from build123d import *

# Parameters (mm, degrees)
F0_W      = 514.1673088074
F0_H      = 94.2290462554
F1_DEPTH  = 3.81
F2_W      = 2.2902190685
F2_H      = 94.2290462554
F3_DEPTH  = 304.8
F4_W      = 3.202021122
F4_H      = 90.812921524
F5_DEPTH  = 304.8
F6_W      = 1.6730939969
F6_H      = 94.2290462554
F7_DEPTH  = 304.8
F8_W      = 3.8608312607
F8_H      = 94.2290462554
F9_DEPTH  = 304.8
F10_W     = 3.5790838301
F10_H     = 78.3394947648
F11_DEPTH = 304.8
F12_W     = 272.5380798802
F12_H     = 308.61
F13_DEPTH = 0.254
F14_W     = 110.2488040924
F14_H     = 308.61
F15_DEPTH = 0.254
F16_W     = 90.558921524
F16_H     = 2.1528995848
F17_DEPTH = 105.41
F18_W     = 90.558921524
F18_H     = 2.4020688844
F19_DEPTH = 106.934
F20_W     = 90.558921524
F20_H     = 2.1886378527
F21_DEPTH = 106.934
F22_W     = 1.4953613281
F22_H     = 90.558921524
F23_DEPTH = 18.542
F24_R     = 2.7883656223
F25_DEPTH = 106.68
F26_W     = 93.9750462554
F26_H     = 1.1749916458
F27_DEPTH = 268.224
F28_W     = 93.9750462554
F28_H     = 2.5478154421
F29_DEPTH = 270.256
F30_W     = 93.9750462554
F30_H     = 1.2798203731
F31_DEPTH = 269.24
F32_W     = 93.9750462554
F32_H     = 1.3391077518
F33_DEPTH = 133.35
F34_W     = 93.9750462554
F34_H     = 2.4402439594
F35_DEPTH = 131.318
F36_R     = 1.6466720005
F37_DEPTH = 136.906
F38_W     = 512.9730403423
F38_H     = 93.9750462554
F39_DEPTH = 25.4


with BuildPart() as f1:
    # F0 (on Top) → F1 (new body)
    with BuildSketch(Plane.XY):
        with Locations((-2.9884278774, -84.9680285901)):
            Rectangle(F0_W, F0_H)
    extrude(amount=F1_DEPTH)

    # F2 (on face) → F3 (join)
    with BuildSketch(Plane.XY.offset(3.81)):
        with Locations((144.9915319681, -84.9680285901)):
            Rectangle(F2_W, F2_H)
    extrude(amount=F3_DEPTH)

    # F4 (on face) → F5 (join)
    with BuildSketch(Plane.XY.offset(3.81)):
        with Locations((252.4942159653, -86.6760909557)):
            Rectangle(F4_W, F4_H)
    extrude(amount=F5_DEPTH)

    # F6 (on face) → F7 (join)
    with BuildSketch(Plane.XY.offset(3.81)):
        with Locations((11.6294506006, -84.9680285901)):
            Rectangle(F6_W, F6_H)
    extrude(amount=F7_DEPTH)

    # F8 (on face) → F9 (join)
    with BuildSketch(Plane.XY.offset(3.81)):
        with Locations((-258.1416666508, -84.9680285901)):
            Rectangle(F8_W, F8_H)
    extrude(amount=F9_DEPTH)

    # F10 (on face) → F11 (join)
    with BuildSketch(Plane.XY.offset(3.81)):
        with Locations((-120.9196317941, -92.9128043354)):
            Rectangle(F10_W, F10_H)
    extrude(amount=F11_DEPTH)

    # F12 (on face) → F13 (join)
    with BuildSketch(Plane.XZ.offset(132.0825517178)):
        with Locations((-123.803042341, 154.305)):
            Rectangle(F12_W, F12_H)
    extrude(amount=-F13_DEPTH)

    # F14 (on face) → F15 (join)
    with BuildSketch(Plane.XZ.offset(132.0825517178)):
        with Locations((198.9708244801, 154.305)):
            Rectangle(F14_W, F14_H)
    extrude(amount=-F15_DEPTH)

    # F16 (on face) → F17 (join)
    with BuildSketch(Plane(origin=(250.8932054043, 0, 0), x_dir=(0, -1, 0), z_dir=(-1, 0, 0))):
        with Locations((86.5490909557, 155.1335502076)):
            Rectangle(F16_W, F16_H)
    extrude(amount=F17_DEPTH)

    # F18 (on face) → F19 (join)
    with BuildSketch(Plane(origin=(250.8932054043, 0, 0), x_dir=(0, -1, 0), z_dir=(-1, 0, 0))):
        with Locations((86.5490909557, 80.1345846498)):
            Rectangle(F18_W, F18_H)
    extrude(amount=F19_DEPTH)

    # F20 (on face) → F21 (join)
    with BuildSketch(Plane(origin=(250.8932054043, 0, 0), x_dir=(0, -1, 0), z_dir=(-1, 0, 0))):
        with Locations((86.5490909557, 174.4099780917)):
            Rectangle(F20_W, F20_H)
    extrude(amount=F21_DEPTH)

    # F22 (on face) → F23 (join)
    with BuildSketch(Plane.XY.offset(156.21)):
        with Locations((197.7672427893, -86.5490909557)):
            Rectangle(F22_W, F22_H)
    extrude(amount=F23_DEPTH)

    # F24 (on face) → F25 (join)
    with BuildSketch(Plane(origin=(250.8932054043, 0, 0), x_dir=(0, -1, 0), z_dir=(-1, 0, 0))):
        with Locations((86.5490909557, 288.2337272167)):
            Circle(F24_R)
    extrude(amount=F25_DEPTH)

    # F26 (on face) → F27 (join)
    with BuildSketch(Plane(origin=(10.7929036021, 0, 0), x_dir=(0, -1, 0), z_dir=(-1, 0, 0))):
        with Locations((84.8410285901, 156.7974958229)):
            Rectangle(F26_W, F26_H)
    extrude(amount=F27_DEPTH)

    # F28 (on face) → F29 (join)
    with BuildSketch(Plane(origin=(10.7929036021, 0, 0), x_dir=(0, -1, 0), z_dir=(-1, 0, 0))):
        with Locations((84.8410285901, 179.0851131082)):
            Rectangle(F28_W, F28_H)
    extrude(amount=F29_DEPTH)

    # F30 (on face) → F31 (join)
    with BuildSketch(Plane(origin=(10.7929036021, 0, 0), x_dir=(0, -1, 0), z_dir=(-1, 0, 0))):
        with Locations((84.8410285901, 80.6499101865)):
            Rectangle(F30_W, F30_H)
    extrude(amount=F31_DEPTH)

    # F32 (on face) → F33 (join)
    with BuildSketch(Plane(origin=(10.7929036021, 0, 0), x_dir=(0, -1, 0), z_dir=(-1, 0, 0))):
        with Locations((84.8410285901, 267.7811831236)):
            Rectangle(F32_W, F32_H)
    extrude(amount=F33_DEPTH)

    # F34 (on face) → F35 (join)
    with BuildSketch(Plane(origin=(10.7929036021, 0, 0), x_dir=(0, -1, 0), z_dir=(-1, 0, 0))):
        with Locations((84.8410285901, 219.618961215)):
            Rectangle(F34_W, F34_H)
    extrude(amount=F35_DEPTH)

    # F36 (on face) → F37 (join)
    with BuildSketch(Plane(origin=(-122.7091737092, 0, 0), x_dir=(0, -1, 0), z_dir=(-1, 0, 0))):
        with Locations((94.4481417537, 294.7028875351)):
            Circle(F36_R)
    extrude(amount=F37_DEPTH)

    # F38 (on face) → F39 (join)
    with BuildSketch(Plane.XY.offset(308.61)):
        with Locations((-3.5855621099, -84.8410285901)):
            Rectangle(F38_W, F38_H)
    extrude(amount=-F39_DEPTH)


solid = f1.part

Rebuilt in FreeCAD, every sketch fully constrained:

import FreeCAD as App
import Part
import Sketcher
from FreeCAD import Vector
Q = App.Units.Quantity


def add_polygon(sketch, points):
    """Adds a closed chain of lines whose ends are joined by coincident constraints."""
    first, n = sketch.GeometryCount, len(points)
    for a, b in zip(points, points[1:] + points[:1]):
        sketch.addGeometry(Part.LineSegment(App.Vector(*a, 0), App.Vector(*b, 0)), False)
    for i in range(n):
        sketch.addConstraint(Sketcher.Constraint("Coincident", first + i, 2, first + (i + 1) % n, 1))

doc = App.newDocument("Part")
body = doc.addObject("PartDesign::Body", "Body")

# Sketch on XY plane
sketch1 = body.newObject("Sketcher::SketchObject", "Sketch")
sketch1.AttachmentSupport = (doc.getObject("XY_Plane"), [""])
sketch1.MapMode = "FlatFace"
add_polygon(sketch1, [(-260.072082, -37.853505), (-260.072082, -132.082552), (254.095227, -132.082552), (254.095227, -37.853505)])  # lines 0-3
sketch1.addConstraint(Sketcher.Constraint("Vertical", 0))
sketch1.addConstraint(Sketcher.Constraint("Horizontal", 1))
sketch1.addConstraint(Sketcher.Constraint("Vertical", 2))
sketch1.addConstraint(Sketcher.Constraint("Horizontal", 3))
sketch1.addConstraint(Sketcher.Constraint("DistanceX", 1, 1, 1, 2, Q("514.167309 mm")))
sketch1.addConstraint(Sketcher.Constraint("DistanceY", 0, 2, 0, 1, Q("94.229046 mm")))
sketch1.addConstraint(Sketcher.Constraint("DistanceY", 0, 2, -1, 1, Q("132.082552 mm")))
sketch1.addConstraint(Sketcher.Constraint("DistanceX", 0, 2, -1, 1, Q("260.072082 mm")))
pad1 = body.newObject("PartDesign::Pad", "Pad")
pad1.Profile = sketch1
pad1.Length = Q("0.15 in")

# Sketch on XY plane
sketch2 = body.newObject("Sketcher::SketchObject", "Sketch001")
sketch2.AttachmentSupport = (doc.getObject("XY_Plane"), [""])
sketch2.MapMode = "FlatFace"
sketch2.AttachmentOffset = App.Placement(Vector(0, 0, 0.15 * 25.4), App.Rotation())
add_polygon(sketch2, [(143.846422, -37.853505), (143.846422, -132.082552), (146.136642, -132.082552), (146.136642, -37.853505)])  # lines 0-3
sketch2.addConstraint(Sketcher.Constraint("Vertical", 0))
sketch2.addConstraint(Sketcher.Constraint("Horizontal", 1))
sketch2.addConstraint(Sketcher.Constraint("Vertical", 2))
sketch2.addConstraint(Sketcher.Constraint("Horizontal", 3))
sketch2.addConstraint(Sketcher.Constraint("DistanceX", 1, 1, 1, 2, Q("2.290219 mm")))
sketch2.addConstraint(Sketcher.Constraint("DistanceY", 0, 2, 0, 1, Q("94.229046 mm")))
sketch2.addConstraint(Sketcher.Constraint("DistanceY", 0, 2, -1, 1, Q("132.082552 mm")))
sketch2.addConstraint(Sketcher.Constraint("DistanceX", -1, 1, 1, 2, Q("146.136642 mm")))
pad2 = body.newObject("PartDesign::Pad", "Pad001")
pad2.Profile = sketch2
pad2.Length = Q("12 in")

# Sketch on XY plane
sketch3 = body.newObject("Sketcher::SketchObject", "Sketch002")
sketch3.AttachmentSupport = (doc.getObject("XY_Plane"), [""])
sketch3.MapMode = "FlatFace"
sketch3.AttachmentOffset = App.Placement(Vector(0, 0, 0.15 * 25.4), App.Rotation())
add_polygon(sketch3, [(250.893205, -41.26963), (250.893205, -132.082552), (254.095227, -132.082552), (254.095227, -41.26963)])  # lines 0-3
sketch3.addConstraint(Sketcher.Constraint("Vertical", 0))
sketch3.addConstraint(Sketcher.Constraint("Horizontal", 1))
sketch3.addConstraint(Sketcher.Constraint("Vertical", 2))
sketch3.addConstraint(Sketcher.Constraint("Horizontal", 3))
sketch3.addConstraint(Sketcher.Constraint("DistanceX", 1, 1, 1, 2, Q("3.202021 mm")))
sketch3.addConstraint(Sketcher.Constraint("DistanceY", 0, 2, 0, 1, Q("90.812922 mm")))
sketch3.addConstraint(Sketcher.Constraint("DistanceY", 0, 2, -1, 1, Q("132.082552 mm")))
sketch3.addConstraint(Sketcher.Constraint("DistanceX", -1, 1, 0, 2, Q("250.893205 mm")))
pad3 = body.newObject("PartDesign::Pad", "Pad002")
pad3.Profile = sketch3
pad3.Length = Q("12 in")

# Sketch on XY plane
sketch4 = body.newObject("Sketcher::SketchObject", "Sketch003")
sketch4.AttachmentSupport = (doc.getObject("XY_Plane"), [""])
sketch4.MapMode = "FlatFace"
sketch4.AttachmentOffset = App.Placement(Vector(0, 0, 0.15 * 25.4), App.Rotation())
add_polygon(sketch4, [(10.792904, -37.853505), (10.792904, -132.082552), (12.465998, -132.082552), (12.465998, -37.853505)])  # lines 0-3
sketch4.addConstraint(Sketcher.Constraint("Vertical", 0))
sketch4.addConstraint(Sketcher.Constraint("Horizontal", 1))
sketch4.addConstraint(Sketcher.Constraint("Vertical", 2))
sketch4.addConstraint(Sketcher.Constraint("Horizontal", 3))
sketch4.addConstraint(Sketcher.Constraint("DistanceX", 1, 1, 1, 2, Q("1.673094 mm")))
sketch4.addConstraint(Sketcher.Constraint("DistanceY", 0, 2, 0, 1, Q("94.229046 mm")))
sketch4.addConstraint(Sketcher.Constraint("DistanceY", 0, 2, -1, 1, Q("132.082552 mm")))
sketch4.addConstraint(Sketcher.Constraint("DistanceX", -1, 1, 0, 2, Q("10.792904 mm")))
pad4 = body.newObject("PartDesign::Pad", "Pad003")
pad4.Profile = sketch4
pad4.Length = Q("12 in")

# Sketch on XY plane
sketch5 = body.newObject("Sketcher::SketchObject", "Sketch004")
sketch5.AttachmentSupport = (doc.getObject("XY_Plane"), [""])
sketch5.MapMode = "FlatFace"
sketch5.AttachmentOffset = App.Placement(Vector(0, 0, 0.15 * 25.4), App.Rotation())
add_polygon(sketch5, [(-260.072082, -37.853505), (-260.072082, -132.082552), (-256.211251, -132.082552), (-256.211251, -37.853505)])  # lines 0-3
sketch5.addConstraint(Sketcher.Constraint("Vertical", 0))
sketch5.addConstraint(Sketcher.Constraint("Horizontal", 1))
sketch5.addConstraint(Sketcher.Constraint("Vertical", 2))
sketch5.addConstraint(Sketcher.Constraint("Horizontal", 3))
sketch5.addConstraint(Sketcher.Constraint("DistanceX", 1, 1, 1, 2, Q("3.860831 mm")))
sketch5.addConstraint(Sketcher.Constraint("DistanceY", 0, 2, 0, 1, Q("94.229046 mm")))
sketch5.addConstraint(Sketcher.Constraint("DistanceY", 0, 2, -1, 1, Q("132.082552 mm")))
sketch5.addConstraint(Sketcher.Constraint("DistanceX", 1, 2, -1, 1, Q("256.211251 mm")))
pad5 = body.newObject("PartDesign::Pad", "Pad004")
pad5.Profile = sketch5
pad5.Length = Q("12 in")

# Sketch on XY plane
sketch6 = body.newObject("Sketcher::SketchObject", "Sketch005")
sketch6.AttachmentSupport = (doc.getObject("XY_Plane"), [""])
sketch6.MapMode = "FlatFace"
sketch6.AttachmentOffset = App.Placement(Vector(0, 0, 0.15 * 25.4), App.Rotation())
add_polygon(sketch6, [(-122.709174, -53.743057), (-122.709174, -132.082552), (-119.13009, -132.082552), (-119.13009, -53.743057)])  # lines 0-3
sketch6.addConstraint(Sketcher.Constraint("Vertical", 0))
sketch6.addConstraint(Sketcher.Constraint("Horizontal", 1))
sketch6.addConstraint(Sketcher.Constraint("Vertical", 2))
sketch6.addConstraint(Sketcher.Constraint("Horizontal", 3))
sketch6.addConstraint(Sketcher.Constraint("DistanceX", 1, 1, 1, 2, Q("3.579084 mm")))
sketch6.addConstraint(Sketcher.Constraint("DistanceY", 0, 2, 0, 1, Q("78.339495 mm")))
sketch6.addConstraint(Sketcher.Constraint("DistanceY", 0, 2, -1, 1, Q("132.082552 mm")))
sketch6.addConstraint(Sketcher.Constraint("DistanceX", 1, 2, -1, 1, Q("119.13009 mm")))
pad6 = body.newObject("PartDesign::Pad", "Pad005")
pad6.Profile = sketch6
pad6.Length = Q("12 in")

# Sketch on XZ plane
sketch7 = body.newObject("Sketcher::SketchObject", "Sketch006")
sketch7.AttachmentSupport = (doc.getObject("XZ_Plane"), [""])
sketch7.MapMode = "FlatFace"
sketch7.AttachmentOffset = App.Placement(Vector(0, 0, 132.082552), App.Rotation())
add_polygon(sketch7, [(-260.072082, 308.61), (-260.072082, 0), (12.465998, 0), (12.465998, 308.61)])  # lines 0-3
sketch7.addConstraint(Sketcher.Constraint("Vertical", 0))
sketch7.addConstraint(Sketcher.Constraint("Horizontal", 1))
sketch7.addConstraint(Sketcher.Constraint("Vertical", 2))
sketch7.addConstraint(Sketcher.Constraint("Horizontal", 3))
sketch7.addConstraint(Sketcher.Constraint("PointOnObject", 0, 2, -1))
sketch7.addConstraint(Sketcher.Constraint("DistanceY", 0, 2, 0, 1, Q("12.15 in")))
sketch7.addConstraint(Sketcher.Constraint("DistanceX", 1, 1, 1, 2, Q("272.53808 mm")))
sketch7.addConstraint(Sketcher.Constraint("DistanceX", 0, 2, -1, 1, Q("260.072082 mm")))
pad7 = body.newObject("PartDesign::Pad", "Pad006")
pad7.Profile = sketch7
pad7.Length = Q("0.01 in")
pad7.Reversed = True

# Sketch on XZ plane
sketch8 = body.newObject("Sketcher::SketchObject", "Sketch007")
sketch8.AttachmentSupport = (doc.getObject("XZ_Plane"), [""])
sketch8.MapMode = "FlatFace"
sketch8.AttachmentOffset = App.Placement(Vector(0, 0, 132.082552), App.Rotation())
add_polygon(sketch8, [(143.846422, 308.61), (143.846422, 0), (254.095227, 0), (254.095227, 308.61)])  # lines 0-3
sketch8.addConstraint(Sketcher.Constraint("Vertical", 0))
sketch8.addConstraint(Sketcher.Constraint("Horizontal", 1))
sketch8.addConstraint(Sketcher.Constraint("Vertical", 2))
sketch8.addConstraint(Sketcher.Constraint("Horizontal", 3))
sketch8.addConstraint(Sketcher.Constraint("PointOnObject", 0, 2, -1))
sketch8.addConstraint(Sketcher.Constraint("DistanceY", 0, 2, 0, 1, Q("12.15 in")))
sketch8.addConstraint(Sketcher.Constraint("DistanceX", 1, 1, 1, 2, Q("110.248804 mm")))
sketch8.addConstraint(Sketcher.Constraint("DistanceX", -1, 1, 0, 2, Q("143.846422 mm")))
pad8 = body.newObject("PartDesign::Pad", "Pad007")
pad8.Profile = sketch8
pad8.Length = Q("0.01 in")
pad8.Reversed = True

# Sketch on YZ plane
sketch9 = body.newObject("Sketcher::SketchObject", "Sketch008")
sketch9.AttachmentSupport = (doc.getObject("YZ_Plane"), [""])
sketch9.MapMode = "FlatFace"
sketch9.AttachmentOffset = App.Placement(Vector(0, 0, 250.893205), App.Rotation())
add_polygon(sketch9, [(-41.26963, 156.21), (-41.26963, 154.0571), (-131.828552, 154.0571), (-131.828552, 156.21)])  # lines 0-3
sketch9.addConstraint(Sketcher.Constraint("Vertical", 0))
sketch9.addConstraint(Sketcher.Constraint("Horizontal", 1))
sketch9.addConstraint(Sketcher.Constraint("Vertical", 2))
sketch9.addConstraint(Sketcher.Constraint("Horizontal", 3))
sketch9.addConstraint(Sketcher.Constraint("DistanceY", -1, 1, 2, 2, Q("6.15 in")))
sketch9.addConstraint(Sketcher.Constraint("DistanceY", 0, 2, 0, 1, Q("2.1529 mm")))
sketch9.addConstraint(Sketcher.Constraint("DistanceX", 1, 2, 1, 1, Q("90.558922 mm")))
sketch9.addConstraint(Sketcher.Constraint("DistanceX", 0, 2, -1, 1, Q("41.26963 mm")))
pad9 = body.newObject("PartDesign::Pad", "Pad008")
pad9.Profile = sketch9
pad9.Length = Q("4.15 in")
pad9.Reversed = True

# Sketch on YZ plane
sketch10 = body.newObject("Sketcher::SketchObject", "Sketch009")
sketch10.AttachmentSupport = (doc.getObject("YZ_Plane"), [""])
sketch10.MapMode = "FlatFace"
sketch10.AttachmentOffset = App.Placement(Vector(0, 0, 250.893205), App.Rotation())
add_polygon(sketch10, [(-41.26963, 81.335619), (-41.26963, 78.93355), (-131.828552, 78.93355), (-131.828552, 81.335619)])  # lines 0-3
sketch10.addConstraint(Sketcher.Constraint("Vertical", 0))
sketch10.addConstraint(Sketcher.Constraint("Horizontal", 1))
sketch10.addConstraint(Sketcher.Constraint("Vertical", 2))
sketch10.addConstraint(Sketcher.Constraint("Horizontal", 3))
sketch10.addConstraint(Sketcher.Constraint("DistanceX", 1, 2, 1, 1, Q("90.558922 mm")))
sketch10.addConstraint(Sketcher.Constraint("DistanceY", 0, 2, 0, 1, Q("2.402069 mm")))
sketch10.addConstraint(Sketcher.Constraint("DistanceX", 0, 2, -1, 1, Q("41.26963 mm")))
sketch10.addConstraint(Sketcher.Constraint("DistanceY", -1, 1, 0, 2, Q("78.93355 mm")))
pad10 = body.newObject("PartDesign::Pad", "Pad009")
pad10.Profile = sketch10
pad10.Length = Q("4.21 in")
pad10.Reversed = True

# Sketch on YZ plane
sketch11 = body.newObject("Sketcher::SketchObject", "Sketch010")
sketch11.AttachmentSupport = (doc.getObject("YZ_Plane"), [""])
sketch11.MapMode = "FlatFace"
sketch11.AttachmentOffset = App.Placement(Vector(0, 0, 250.893205), App.Rotation())
add_polygon(sketch11, [(-41.26963, 175.504297), (-41.26963, 173.315659), (-131.828552, 173.315659), (-131.828552, 175.504297)])  # lines 0-3
sketch11.addConstraint(Sketcher.Constraint("Vertical", 0))
sketch11.addConstraint(Sketcher.Constraint("Horizontal", 1))
sketch11.addConstraint(Sketcher.Constraint("Vertical", 2))
sketch11.addConstraint(Sketcher.Constraint("Horizontal", 3))
sketch11.addConstraint(Sketcher.Constraint("DistanceX", 1, 2, 1, 1, Q("90.558922 mm")))
sketch11.addConstraint(Sketcher.Constraint("DistanceY", 0, 2, 0, 1, Q("2.188638 mm")))
sketch11.addConstraint(Sketcher.Constraint("DistanceX", 0, 2, -1, 1, Q("41.26963 mm")))
sketch11.addConstraint(Sketcher.Constraint("DistanceY", -1, 1, 0, 2, Q("173.315659 mm")))
pad11 = body.newObject("PartDesign::Pad", "Pad010")
pad11.Profile = sketch11
pad11.Length = Q("4.21 in")
pad11.Reversed = True

# Sketch on XY plane
sketch12 = body.newObject("Sketcher::SketchObject", "Sketch011")
sketch12.AttachmentSupport = (doc.getObject("XY_Plane"), [""])
sketch12.MapMode = "FlatFace"
sketch12.AttachmentOffset = App.Placement(Vector(0, 0, 6.15 * 25.4), App.Rotation())
add_polygon(sketch12, [(197.019562, -41.26963), (197.019562, -131.828552), (198.514923, -131.828552), (198.514923, -41.26963)])  # lines 0-3
sketch12.addConstraint(Sketcher.Constraint("Vertical", 0))
sketch12.addConstraint(Sketcher.Constraint("Horizontal", 1))
sketch12.addConstraint(Sketcher.Constraint("Vertical", 2))
sketch12.addConstraint(Sketcher.Constraint("Horizontal", 3))
sketch12.addConstraint(Sketcher.Constraint("DistanceX", 1, 1, 1, 2, Q("1.495361 mm")))
sketch12.addConstraint(Sketcher.Constraint("DistanceY", 0, 2, 0, 1, Q("90.558922 mm")))
sketch12.addConstraint(Sketcher.Constraint("DistanceY", 0, 2, -1, 1, Q("131.828552 mm")))
sketch12.addConstraint(Sketcher.Constraint("DistanceX", -1, 1, 0, 2, Q("197.019562 mm")))
pad12 = body.newObject("PartDesign::Pad", "Pad011")
pad12.Profile = sketch12
pad12.Length = Q("0.73 in")

# Sketch on YZ plane
sketch13 = body.newObject("Sketcher::SketchObject", "Sketch012")
sketch13.AttachmentSupport = (doc.getObject("YZ_Plane"), [""])
sketch13.MapMode = "FlatFace"
sketch13.AttachmentOffset = App.Placement(Vector(0, 0, 250.893205), App.Rotation())
sketch13.addGeometry(Part.Circle(Vector(-86.549091, 288.233727, 0), Vector(0, 0, 1), 2.788366), False)
sketch13.addConstraint(Sketcher.Constraint("Diameter", 0, Q("5.576731 mm")))
sketch13.addConstraint(Sketcher.Constraint("DistanceX", 0, 3, -1, 1, Q("86.549091 mm")))
sketch13.addConstraint(Sketcher.Constraint("DistanceY", -1, 1, 0, 3, Q("288.233727 mm")))
pad13 = body.newObject("PartDesign::Pad", "Pad012")
pad13.Profile = sketch13
pad13.Length = Q("4.2 in")
pad13.Reversed = True

# Sketch on YZ plane
sketch14 = body.newObject("Sketcher::SketchObject", "Sketch013")
sketch14.AttachmentSupport = (doc.getObject("YZ_Plane"), [""])
sketch14.MapMode = "FlatFace"
sketch14.AttachmentOffset = App.Placement(Vector(0, 0, 10.792904), App.Rotation())
add_polygon(sketch14, [(-37.853505, 157.384992), (-37.853505, 156.21), (-131.828552, 156.21), (-131.828552, 157.384992)])  # lines 0-3
sketch14.addConstraint(Sketcher.Constraint("Vertical", 0))
sketch14.addConstraint(Sketcher.Constraint("Horizontal", 1))
sketch14.addConstraint(Sketcher.Constraint("Vertical", 2))
sketch14.addConstraint(Sketcher.Constraint("Horizontal", 3))
sketch14.addConstraint(Sketcher.Constraint("DistanceY", -1, 1, 0, 2, Q("6.15 in")))
sketch14.addConstraint(Sketcher.Constraint("DistanceY", 0, 2, 0, 1, Q("1.174992 mm")))
sketch14.addConstraint(Sketcher.Constraint("DistanceX", 1, 2, 1, 1, Q("93.975046 mm")))
sketch14.addConstraint(Sketcher.Constraint("DistanceX", 1, 2, -1, 1, Q("131.828552 mm")))
pad14 = body.newObject("PartDesign::Pad", "Pad013")
pad14.Profile = sketch14
pad14.Length = Q("10.56 in")
pad14.Reversed = True

# Sketch on YZ plane
sketch15 = body.newObject("Sketcher::SketchObject", "Sketch014")
sketch15.AttachmentSupport = (doc.getObject("YZ_Plane"), [""])
sketch15.MapMode = "FlatFace"
sketch15.AttachmentOffset = App.Placement(Vector(0, 0, 10.792904), App.Rotation())
add_polygon(sketch15, [(-37.853505, 180.359021), (-37.853505, 177.811205), (-131.828552, 177.811205), (-131.828552, 180.359021)])  # lines 0-3
sketch15.addConstraint(Sketcher.Constraint("Vertical", 0))
sketch15.addConstraint(Sketcher.Constraint("Horizontal", 1))
sketch15.addConstraint(Sketcher.Constraint("Vertical", 2))
sketch15.addConstraint(Sketcher.Constraint("Horizontal", 3))
sketch15.addConstraint(Sketcher.Constraint("DistanceX", 1, 2, 1, 1, Q("93.975046 mm")))
sketch15.addConstraint(Sketcher.Constraint("DistanceY", 0, 2, 0, 1, Q("2.547815 mm")))
sketch15.addConstraint(Sketcher.Constraint("DistanceX", 1, 2, -1, 1, Q("131.828552 mm")))
sketch15.addConstraint(Sketcher.Constraint("DistanceY", -1, 1, 2, 2, Q("180.359021 mm")))
pad15 = body.newObject("PartDesign::Pad", "Pad014")
pad15.Profile = sketch15
pad15.Length = Q("10.64 in")
pad15.Reversed = True

# Sketch on YZ plane
sketch16 = body.newObject("Sketcher::SketchObject", "Sketch015")
sketch16.AttachmentSupport = (doc.getObject("YZ_Plane"), [""])
sketch16.MapMode = "FlatFace"
sketch16.AttachmentOffset = App.Placement(Vector(0, 0, 10.792904), App.Rotation())
add_polygon(sketch16, [(-37.853505, 81.28982), (-37.853505, 80.01), (-131.828552, 80.01), (-131.828552, 81.28982)])  # lines 0-3
sketch16.addConstraint(Sketcher.Constraint("Vertical", 0))
sketch16.addConstraint(Sketcher.Constraint("Horizontal", 1))
sketch16.addConstraint(Sketcher.Constraint("Vertical", 2))
sketch16.addConstraint(Sketcher.Constraint("Horizontal", 3))
sketch16.addConstraint(Sketcher.Constraint("DistanceY", -1, 1, 0, 2, Q("3.15 in")))
sketch16.addConstraint(Sketcher.Constraint("DistanceY", 0, 2, 0, 1, Q("1.27982 mm")))
sketch16.addConstraint(Sketcher.Constraint("DistanceX", 1, 2, 1, 1, Q("93.975046 mm")))
sketch16.addConstraint(Sketcher.Constraint("DistanceX", 1, 2, -1, 1, Q("131.828552 mm")))
pad16 = body.newObject("PartDesign::Pad", "Pad015")
pad16.Profile = sketch16
pad16.Length = Q("10.6 in")
pad16.Reversed = True

# Sketch on YZ plane
sketch17 = body.newObject("Sketcher::SketchObject", "Sketch016")
sketch17.AttachmentSupport = (doc.getObject("YZ_Plane"), [""])
sketch17.MapMode = "FlatFace"
sketch17.AttachmentOffset = App.Placement(Vector(0, 0, 10.792904), App.Rotation())
add_polygon(sketch17, [(-37.853505, 268.450737), (-37.853505, 267.111629), (-131.828552, 267.111629), (-131.828552, 268.450737)])  # lines 0-3
sketch17.addConstraint(Sketcher.Constraint("Vertical", 0))
sketch17.addConstraint(Sketcher.Constraint("Horizontal", 1))
sketch17.addConstraint(Sketcher.Constraint("Vertical", 2))
sketch17.addConstraint(Sketcher.Constraint("Horizontal", 3))
sketch17.addConstraint(Sketcher.Constraint("DistanceX", 1, 2, 1, 1, Q("93.975046 mm")))
sketch17.addConstraint(Sketcher.Constraint("DistanceY", 0, 2, 0, 1, Q("1.339108 mm")))
sketch17.addConstraint(Sketcher.Constraint("DistanceY", -1, 1, 0, 2, Q("267.111629 mm")))
sketch17.addConstraint(Sketcher.Constraint("DistanceX", 1, 2, -1, 1, Q("131.828552 mm")))
pad17 = body.newObject("PartDesign::Pad", "Pad016")
pad17.Profile = sketch17
pad17.Length = Q("5.25 in")
pad17.Reversed = True

# Sketch on YZ plane
sketch18 = body.newObject("Sketcher::SketchObject", "Sketch017")
sketch18.AttachmentSupport = (doc.getObject("YZ_Plane"), [""])
sketch18.MapMode = "FlatFace"
sketch18.AttachmentOffset = App.Placement(Vector(0, 0, 10.792904), App.Rotation())
add_polygon(sketch18, [(-37.853505, 220.839083), (-37.853505, 218.398839), (-131.828552, 218.398839), (-131.828552, 220.839083)])  # lines 0-3
sketch18.addConstraint(Sketcher.Constraint("Vertical", 0))
sketch18.addConstraint(Sketcher.Constraint("Horizontal", 1))
sketch18.addConstraint(Sketcher.Constraint("Vertical", 2))
sketch18.addConstraint(Sketcher.Constraint("Horizontal", 3))
sketch18.addConstraint(Sketcher.Constraint("DistanceX", 1, 2, 1, 1, Q("93.975046 mm")))
sketch18.addConstraint(Sketcher.Constraint("DistanceY", 0, 2, 0, 1, Q("2.440244 mm")))
sketch18.addConstraint(Sketcher.Constraint("DistanceY", -1, 1, 0, 2, Q("218.398839 mm")))
sketch18.addConstraint(Sketcher.Constraint("DistanceX", 1, 2, -1, 1, Q("131.828552 mm")))
pad18 = body.newObject("PartDesign::Pad", "Pad017")
pad18.Profile = sketch18
pad18.Length = Q("5.17 in")
pad18.Reversed = True

# Sketch on YZ plane
sketch19 = body.newObject("Sketcher::SketchObject", "Sketch018")
sketch19.AttachmentSupport = (doc.getObject("YZ_Plane"), [""])
sketch19.MapMode = "FlatFace"
sketch19.AttachmentOffset = App.Placement(Vector(0, 0, -122.709174), App.Rotation())
sketch19.addGeometry(Part.Circle(Vector(-94.448142, 294.702888, 0), Vector(0, 0, 1), 1.646672), False)
sketch19.addConstraint(Sketcher.Constraint("Diameter", 0, Q("3.293344 mm")))
sketch19.addConstraint(Sketcher.Constraint("DistanceX", 0, 3, -1, 1, Q("94.448142 mm")))
sketch19.addConstraint(Sketcher.Constraint("DistanceY", -1, 1, 0, 3, Q("294.702888 mm")))
pad19 = body.newObject("PartDesign::Pad", "Pad018")
pad19.Profile = sketch19
pad19.Length = Q("5.39 in")
pad19.Reversed = True

# Sketch on XY plane
sketch20 = body.newObject("Sketcher::SketchObject", "Sketch019")
sketch20.AttachmentSupport = (doc.getObject("XY_Plane"), [""])
sketch20.MapMode = "FlatFace"
sketch20.AttachmentOffset = App.Placement(Vector(0, 0, 12.15 * 25.4), App.Rotation())
add_polygon(sketch20, [(-260.072082, -37.853505), (-260.072082, -131.828552), (252.900958, -131.828552), (252.900958, -37.853505)])  # lines 0-3
sketch20.addConstraint(Sketcher.Constraint("Vertical", 0))
sketch20.addConstraint(Sketcher.Constraint("Horizontal", 1))
sketch20.addConstraint(Sketcher.Constraint("Vertical", 2))
sketch20.addConstraint(Sketcher.Constraint("Horizontal", 3))
sketch20.addConstraint(Sketcher.Constraint("DistanceX", 1, 1, 1, 2, Q("512.97304 mm")))
sketch20.addConstraint(Sketcher.Constraint("DistanceY", 0, 2, 0, 1, Q("93.975046 mm")))
sketch20.addConstraint(Sketcher.Constraint("DistanceY", 0, 2, -1, 1, Q("131.828552 mm")))
sketch20.addConstraint(Sketcher.Constraint("DistanceX", -1, 1, 1, 2, Q("252.900958 mm")))
pad20 = body.newObject("PartDesign::Pad", "Pad019")
pad20.Profile = sketch20
pad20.Length = Q("1 in")
pad20.Reversed = True

doc.recompute()
